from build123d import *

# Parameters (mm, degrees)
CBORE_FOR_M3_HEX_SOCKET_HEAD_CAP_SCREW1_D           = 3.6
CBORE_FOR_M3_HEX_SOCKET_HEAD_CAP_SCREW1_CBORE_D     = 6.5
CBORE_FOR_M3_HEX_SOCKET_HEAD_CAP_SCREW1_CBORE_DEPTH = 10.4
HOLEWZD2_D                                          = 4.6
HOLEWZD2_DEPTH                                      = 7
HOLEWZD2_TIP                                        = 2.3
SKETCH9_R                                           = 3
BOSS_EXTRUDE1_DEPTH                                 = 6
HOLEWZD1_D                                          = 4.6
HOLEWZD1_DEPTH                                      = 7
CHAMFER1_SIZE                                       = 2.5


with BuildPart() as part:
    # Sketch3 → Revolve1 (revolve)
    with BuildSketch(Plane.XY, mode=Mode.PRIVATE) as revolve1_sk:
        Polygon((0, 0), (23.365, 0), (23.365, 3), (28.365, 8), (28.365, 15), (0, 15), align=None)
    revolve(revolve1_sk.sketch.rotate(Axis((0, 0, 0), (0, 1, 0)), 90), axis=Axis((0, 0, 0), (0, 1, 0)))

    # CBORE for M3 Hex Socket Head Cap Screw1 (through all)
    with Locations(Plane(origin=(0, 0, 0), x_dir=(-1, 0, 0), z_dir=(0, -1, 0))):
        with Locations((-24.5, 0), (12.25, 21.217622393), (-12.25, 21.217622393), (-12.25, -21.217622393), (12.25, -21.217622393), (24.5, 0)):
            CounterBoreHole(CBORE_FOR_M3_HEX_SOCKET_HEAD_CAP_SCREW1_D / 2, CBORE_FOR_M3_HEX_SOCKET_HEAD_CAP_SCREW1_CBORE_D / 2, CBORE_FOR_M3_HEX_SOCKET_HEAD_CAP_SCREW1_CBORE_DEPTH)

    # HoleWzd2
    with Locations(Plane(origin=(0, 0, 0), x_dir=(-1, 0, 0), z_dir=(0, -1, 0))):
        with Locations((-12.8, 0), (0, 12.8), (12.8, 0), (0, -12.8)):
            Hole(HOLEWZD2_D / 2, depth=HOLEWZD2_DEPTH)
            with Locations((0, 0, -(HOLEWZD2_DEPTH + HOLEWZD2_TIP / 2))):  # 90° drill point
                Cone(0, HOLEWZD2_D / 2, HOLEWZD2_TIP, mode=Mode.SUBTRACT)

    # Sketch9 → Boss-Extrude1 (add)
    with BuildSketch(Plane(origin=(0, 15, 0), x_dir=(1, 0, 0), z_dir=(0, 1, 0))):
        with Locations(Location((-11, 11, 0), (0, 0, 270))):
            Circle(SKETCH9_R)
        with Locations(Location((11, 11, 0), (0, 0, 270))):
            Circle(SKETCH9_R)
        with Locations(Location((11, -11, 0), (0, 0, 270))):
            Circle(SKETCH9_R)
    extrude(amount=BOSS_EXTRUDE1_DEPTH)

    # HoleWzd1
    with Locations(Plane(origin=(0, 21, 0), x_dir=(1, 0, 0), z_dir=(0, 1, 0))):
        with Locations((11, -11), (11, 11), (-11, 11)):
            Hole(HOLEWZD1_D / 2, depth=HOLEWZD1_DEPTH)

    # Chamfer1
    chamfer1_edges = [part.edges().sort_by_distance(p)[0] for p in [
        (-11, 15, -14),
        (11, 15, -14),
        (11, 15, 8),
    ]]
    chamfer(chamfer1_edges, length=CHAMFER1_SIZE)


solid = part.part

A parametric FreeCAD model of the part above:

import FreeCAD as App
import Part
import Sketcher

V = App.Vector
Q = App.Units.Quantity


def edges_at(feature, points):
    """Names of the edges that pass closest to the given points."""
    edges = feature.Shape.Edges
    near = lambda p: min(range(len(edges)), key=lambda i: edges[i].distToShape(Part.Vertex(*p))[0])
    return sorted({f"Edge{near(p) + 1}" for p in points})


def add_polygon(sketch, points):
    """Adds a closed chain of lines whose ends are joined by coincident constraints."""
    first, n = sketch.GeometryCount, len(points)
    for a, b in zip(points, points[1:] + points[:1]):
        sketch.addGeometry(Part.LineSegment(App.Vector(*a, 0), App.Vector(*b, 0)), False)
    for i in range(n):
        sketch.addConstraint(Sketcher.Constraint("Coincident", first + i, 2, first + (i + 1) % n, 1))

doc = App.newDocument("Part")
body = doc.addObject("PartDesign::Body", "Body")

# Sketch on XY plane
sketch1 = doc.addObject("Sketcher::SketchObject", "Sketch")
body.addObject(sketch1)
sketch1.AttachmentSupport = (doc.XY_Plane, [""])
sketch1.MapMode = "FlatFace"
add_polygon(sketch1, [(0, 0), (23.4, 0), (23.4, 3), (28.4, 8), (28.4, 15), (0, 15)])  # lines 0-5
sketch1.addConstraint([
    Sketcher.Constraint("Horizontal", 0),
    Sketcher.Constraint("Vertical", 1),
    Sketcher.Constraint("Vertical", 3),
    Sketcher.Constraint("Horizontal", 4),
    Sketcher.Constraint("Vertical", 5),
    Sketcher.Constraint("Coincident", 5, 2, -1, 1),
    Sketcher.Constraint("DistanceY", 1, 1, 1, 2, Q("3 mm")),
    Sketcher.Constraint("DistanceY", 3, 1, 3, 2, Q("7 mm")),
    Sketcher.Constraint("DistanceY", 5, 2, 5, 1, Q("15 mm")),
    Sketcher.Constraint("Angle", 2, Q("45 deg")),
    Sketcher.Constraint("DistanceX", 0, 1, 0, 2, Q("23.365 mm")),
])
revolution = doc.addObject("PartDesign::Revolution", "Revolution")
body.addObject(revolution)
revolution.Profile = sketch1
revolution.ReferenceAxis = (sketch1, ["V_Axis"])
revolution.Angle = 360

# Sketch on XZ plane
sketch2 = doc.addObject("Sketcher::SketchObject", "Sketch001")
body.addObject(sketch2)
sketch2.AttachmentSupport = (doc.XZ_Plane, [""])
sketch2.MapMode = "FlatFace"
sketch2.addGeometry([
    Part.Circle(V(24.5, 0, 0), V(0, 0, 1), 1.8),  # 0
    Part.Circle(V(-12.2, -21.2, 0), V(0, 0, 1), 1.8),  # 1
    Part.Circle(V(12.2, -21.2, 0), V(0, 0, 1), 1.8),  # 2
    Part.Circle(V(12.2, 21.2, 0), V(0, 0, 1), 1.8),  # 3
    Part.Circle(V(-12.2, 21.2, 0), V(0, 0, 1), 1.8),  # 4
    Part.Circle(V(-24.5, 0, 0), V(0, 0, 1), 1.8),  # 5
], False)
sketch2.addConstraint([
    Sketcher.Constraint("Equal", 0, 1),
    Sketcher.Constraint("Equal", 1, 2),
    Sketcher.Constraint("Equal", 2, 3),
    Sketcher.Constraint("Equal", 3, 4),
    Sketcher.Constraint("Equal", 4, 5),
    Sketcher.Constraint("Symmetric", 1, 3, 3, 3, -1, 1),
    Sketcher.Constraint("Symmetric", 2, 3, 4, 3, -1, 1),
    Sketcher.Constraint("Symmetric", 0, 3, 5, 3, -1, 1),
    Sketcher.Constraint("Symmetric", 1, 3, 2, 3, -2),
    Sketcher.Constraint("PointOnObject", 0, 3, -1),
    Sketcher.Constraint("Diameter", 0, Q("3.6 mm")),
    Sketcher.Constraint("DistanceX", 5, 3, 0, 3, Q("49 mm")),
    Sketcher.Constraint("DistanceX", 1, 3, 2, 3, Q("24.5 mm")),
    Sketcher.Constraint("DistanceY", 1, 3, -1, 1, Q("21.217622 mm")),
])
doc.recompute()
hole = doc.addObject("PartDesign::Hole", "Hole")
body.addObject(hole)
hole.Profile = sketch2
hole.ThreadType = "None"
hole.Diameter = 3.6
hole.DepthType = "ThroughAll"
hole.HoleCutType = "Counterbore"
hole.HoleCutDiameter = 6.5
hole.HoleCutDepth = 10.4

# Sketch on XZ plane
sketch3 = doc.addObject("Sketcher::SketchObject", "Sketch002")
body.addObject(sketch3)
sketch3.AttachmentSupport = (doc.XZ_Plane, [""])
sketch3.MapMode = "FlatFace"
sketch3.addGeometry([
    Part.Circle(V(12.8, 0, 0), V(0, 0, 1), 2.3),
    Part.Circle(V(0, -12.8, 0), V(0, 0, 1), 2.3),
    Part.Circle(V(-12.8, 0, 0), V(0, 0, 1), 2.3),
    Part.Circle(V(0, 12.8, 0), V(0, 0, 1), 2.3),
], False)
sketch3.addConstraint([
    Sketcher.Constraint("Equal", 0, 1),
    Sketcher.Constraint("Equal", 1, 2),
    Sketcher.Constraint("Equal", 2, 3),
    Sketcher.Constraint("Symmetric", 0, 3, 2, 3, -1, 1),
    Sketcher.Constraint("Symmetric", 1, 3, 3, 3, -1, 1),
    Sketcher.Constraint("PointOnObject", 0, 3, -1),
    Sketcher.Constraint("PointOnObject", 1, 3, -2),
    Sketcher.Constraint("Diameter", 0, Q("4.6 mm")),
    Sketcher.Constraint("DistanceX", -1, 1, 0, 3, Q("12.8 mm")),
    Sketcher.Constraint("DistanceY", 1, 3, -1, 1, Q("12.8 mm")),
])
doc.recompute()
hole2 = doc.addObject("PartDesign::Hole", "Hole001")
body.addObject(hole2)
hole2.Profile = sketch3
hole2.ThreadType = "None"
hole2.Diameter = 4.6
hole2.DepthType = "Dimension"
hole2.Depth = 7
hole2.DrillPoint = "Angled"
hole2.DrillPointAngle = 90

# Sketch on XZ plane
sketch4 = doc.addObject("Sketcher::SketchObject", "Sketch003")
body.addObject(sketch4)
sketch4.AttachmentSupport = (doc.XZ_Plane, [""])
sketch4.MapMode = "FlatFace"
sketch4.AttachmentOffset = App.Placement(V(0, 0, -15), App.Rotation())
sketch4.addGeometry([
    Part.Circle(V(-11, -11, 0), V(0, 0, 1), 3),
    Part.Circle(V(11, -11, 0), V(0, 0, 1), 3),
    Part.Circle(V(11, 11, 0), V(0, 0, 1), 3),
], False)
sketch4.addConstraint([
    Sketcher.Constraint("Equal", 0, 1),
    Sketcher.Constraint("Equal", 1, 2),
    Sketcher.Constraint("Symmetric", 0, 3, 2, 3, -1, 1),
    Sketcher.Constraint("Symmetric", 0, 3, 1, 3, -2),
    Sketcher.Constraint("Diameter", 0, Q("6 mm")),
    Sketcher.Constraint("DistanceX", 0, 3, -1, 1, Q("11 mm")),
    Sketcher.Constraint("DistanceY", 0, 3, -1, 1, Q("11 mm")),
])
pad1 = doc.addObject("PartDesign::Pad", "Pad")
body.addObject(pad1)
pad1.Profile = sketch4
pad1.Length = 6
pad1.Reversed = True

# Sketch on XZ plane
sketch5 = doc.addObject("Sketcher::SketchObject", "Sketch004")
body.addObject(sketch5)
sketch5.AttachmentSupport = (doc.XZ_Plane, [""])
sketch5.MapMode = "FlatFace"
sketch5.AttachmentOffset = App.Placement(V(0, 0, -21), App.Rotation())
sketch5.addGeometry([
    Part.Circle(V(11, 11, 0), V(0, 0, 1), 2.3),
    Part.Circle(V(11, -11, 0), V(0, 0, 1), 2.3),
    Part.Circle(V(-11, -11, 0), V(0, 0, 1), 2.3),
], False)
sketch5.addConstraint([
    Sketcher.Constraint("Equal", 0, 1),
    Sketcher.Constraint("Equal", 1, 2),
    Sketcher.Constraint("Symmetric", 0, 3, 2, 3, -1, 1),
    Sketcher.Constraint("Symmetric", 1, 3, 2, 3, -2),
    Sketcher.Constraint("Diameter", 0, Q("4.6 mm")),
    Sketcher.Constraint("DistanceX", -1, 1, 0, 3, Q("11 mm")),
    Sketcher.Constraint("DistanceY", -1, 1, 0, 3, Q("11 mm")),
])
doc.recompute()
hole3 = doc.addObject("PartDesign::Hole", "Hole002")
body.addObject(hole3)
hole3.Profile = sketch5
hole3.ThreadType = "None"
hole3.Diameter = 4.6
hole3.DepthType = "Dimension"
hole3.Depth = 7
hole3.DrillPoint = "Flat"
hole3.Reversed = True
doc.recompute()

chamfer = doc.addObject("PartDesign::Chamfer", "Chamfer")
body.addObject(chamfer)
chamfer.Base = (hole3, edges_at(hole3, [(-11, 15, -14), (11, 15, -14), (11, 15, 8)]))
chamfer.Size = 2.5

doc.recompute()
